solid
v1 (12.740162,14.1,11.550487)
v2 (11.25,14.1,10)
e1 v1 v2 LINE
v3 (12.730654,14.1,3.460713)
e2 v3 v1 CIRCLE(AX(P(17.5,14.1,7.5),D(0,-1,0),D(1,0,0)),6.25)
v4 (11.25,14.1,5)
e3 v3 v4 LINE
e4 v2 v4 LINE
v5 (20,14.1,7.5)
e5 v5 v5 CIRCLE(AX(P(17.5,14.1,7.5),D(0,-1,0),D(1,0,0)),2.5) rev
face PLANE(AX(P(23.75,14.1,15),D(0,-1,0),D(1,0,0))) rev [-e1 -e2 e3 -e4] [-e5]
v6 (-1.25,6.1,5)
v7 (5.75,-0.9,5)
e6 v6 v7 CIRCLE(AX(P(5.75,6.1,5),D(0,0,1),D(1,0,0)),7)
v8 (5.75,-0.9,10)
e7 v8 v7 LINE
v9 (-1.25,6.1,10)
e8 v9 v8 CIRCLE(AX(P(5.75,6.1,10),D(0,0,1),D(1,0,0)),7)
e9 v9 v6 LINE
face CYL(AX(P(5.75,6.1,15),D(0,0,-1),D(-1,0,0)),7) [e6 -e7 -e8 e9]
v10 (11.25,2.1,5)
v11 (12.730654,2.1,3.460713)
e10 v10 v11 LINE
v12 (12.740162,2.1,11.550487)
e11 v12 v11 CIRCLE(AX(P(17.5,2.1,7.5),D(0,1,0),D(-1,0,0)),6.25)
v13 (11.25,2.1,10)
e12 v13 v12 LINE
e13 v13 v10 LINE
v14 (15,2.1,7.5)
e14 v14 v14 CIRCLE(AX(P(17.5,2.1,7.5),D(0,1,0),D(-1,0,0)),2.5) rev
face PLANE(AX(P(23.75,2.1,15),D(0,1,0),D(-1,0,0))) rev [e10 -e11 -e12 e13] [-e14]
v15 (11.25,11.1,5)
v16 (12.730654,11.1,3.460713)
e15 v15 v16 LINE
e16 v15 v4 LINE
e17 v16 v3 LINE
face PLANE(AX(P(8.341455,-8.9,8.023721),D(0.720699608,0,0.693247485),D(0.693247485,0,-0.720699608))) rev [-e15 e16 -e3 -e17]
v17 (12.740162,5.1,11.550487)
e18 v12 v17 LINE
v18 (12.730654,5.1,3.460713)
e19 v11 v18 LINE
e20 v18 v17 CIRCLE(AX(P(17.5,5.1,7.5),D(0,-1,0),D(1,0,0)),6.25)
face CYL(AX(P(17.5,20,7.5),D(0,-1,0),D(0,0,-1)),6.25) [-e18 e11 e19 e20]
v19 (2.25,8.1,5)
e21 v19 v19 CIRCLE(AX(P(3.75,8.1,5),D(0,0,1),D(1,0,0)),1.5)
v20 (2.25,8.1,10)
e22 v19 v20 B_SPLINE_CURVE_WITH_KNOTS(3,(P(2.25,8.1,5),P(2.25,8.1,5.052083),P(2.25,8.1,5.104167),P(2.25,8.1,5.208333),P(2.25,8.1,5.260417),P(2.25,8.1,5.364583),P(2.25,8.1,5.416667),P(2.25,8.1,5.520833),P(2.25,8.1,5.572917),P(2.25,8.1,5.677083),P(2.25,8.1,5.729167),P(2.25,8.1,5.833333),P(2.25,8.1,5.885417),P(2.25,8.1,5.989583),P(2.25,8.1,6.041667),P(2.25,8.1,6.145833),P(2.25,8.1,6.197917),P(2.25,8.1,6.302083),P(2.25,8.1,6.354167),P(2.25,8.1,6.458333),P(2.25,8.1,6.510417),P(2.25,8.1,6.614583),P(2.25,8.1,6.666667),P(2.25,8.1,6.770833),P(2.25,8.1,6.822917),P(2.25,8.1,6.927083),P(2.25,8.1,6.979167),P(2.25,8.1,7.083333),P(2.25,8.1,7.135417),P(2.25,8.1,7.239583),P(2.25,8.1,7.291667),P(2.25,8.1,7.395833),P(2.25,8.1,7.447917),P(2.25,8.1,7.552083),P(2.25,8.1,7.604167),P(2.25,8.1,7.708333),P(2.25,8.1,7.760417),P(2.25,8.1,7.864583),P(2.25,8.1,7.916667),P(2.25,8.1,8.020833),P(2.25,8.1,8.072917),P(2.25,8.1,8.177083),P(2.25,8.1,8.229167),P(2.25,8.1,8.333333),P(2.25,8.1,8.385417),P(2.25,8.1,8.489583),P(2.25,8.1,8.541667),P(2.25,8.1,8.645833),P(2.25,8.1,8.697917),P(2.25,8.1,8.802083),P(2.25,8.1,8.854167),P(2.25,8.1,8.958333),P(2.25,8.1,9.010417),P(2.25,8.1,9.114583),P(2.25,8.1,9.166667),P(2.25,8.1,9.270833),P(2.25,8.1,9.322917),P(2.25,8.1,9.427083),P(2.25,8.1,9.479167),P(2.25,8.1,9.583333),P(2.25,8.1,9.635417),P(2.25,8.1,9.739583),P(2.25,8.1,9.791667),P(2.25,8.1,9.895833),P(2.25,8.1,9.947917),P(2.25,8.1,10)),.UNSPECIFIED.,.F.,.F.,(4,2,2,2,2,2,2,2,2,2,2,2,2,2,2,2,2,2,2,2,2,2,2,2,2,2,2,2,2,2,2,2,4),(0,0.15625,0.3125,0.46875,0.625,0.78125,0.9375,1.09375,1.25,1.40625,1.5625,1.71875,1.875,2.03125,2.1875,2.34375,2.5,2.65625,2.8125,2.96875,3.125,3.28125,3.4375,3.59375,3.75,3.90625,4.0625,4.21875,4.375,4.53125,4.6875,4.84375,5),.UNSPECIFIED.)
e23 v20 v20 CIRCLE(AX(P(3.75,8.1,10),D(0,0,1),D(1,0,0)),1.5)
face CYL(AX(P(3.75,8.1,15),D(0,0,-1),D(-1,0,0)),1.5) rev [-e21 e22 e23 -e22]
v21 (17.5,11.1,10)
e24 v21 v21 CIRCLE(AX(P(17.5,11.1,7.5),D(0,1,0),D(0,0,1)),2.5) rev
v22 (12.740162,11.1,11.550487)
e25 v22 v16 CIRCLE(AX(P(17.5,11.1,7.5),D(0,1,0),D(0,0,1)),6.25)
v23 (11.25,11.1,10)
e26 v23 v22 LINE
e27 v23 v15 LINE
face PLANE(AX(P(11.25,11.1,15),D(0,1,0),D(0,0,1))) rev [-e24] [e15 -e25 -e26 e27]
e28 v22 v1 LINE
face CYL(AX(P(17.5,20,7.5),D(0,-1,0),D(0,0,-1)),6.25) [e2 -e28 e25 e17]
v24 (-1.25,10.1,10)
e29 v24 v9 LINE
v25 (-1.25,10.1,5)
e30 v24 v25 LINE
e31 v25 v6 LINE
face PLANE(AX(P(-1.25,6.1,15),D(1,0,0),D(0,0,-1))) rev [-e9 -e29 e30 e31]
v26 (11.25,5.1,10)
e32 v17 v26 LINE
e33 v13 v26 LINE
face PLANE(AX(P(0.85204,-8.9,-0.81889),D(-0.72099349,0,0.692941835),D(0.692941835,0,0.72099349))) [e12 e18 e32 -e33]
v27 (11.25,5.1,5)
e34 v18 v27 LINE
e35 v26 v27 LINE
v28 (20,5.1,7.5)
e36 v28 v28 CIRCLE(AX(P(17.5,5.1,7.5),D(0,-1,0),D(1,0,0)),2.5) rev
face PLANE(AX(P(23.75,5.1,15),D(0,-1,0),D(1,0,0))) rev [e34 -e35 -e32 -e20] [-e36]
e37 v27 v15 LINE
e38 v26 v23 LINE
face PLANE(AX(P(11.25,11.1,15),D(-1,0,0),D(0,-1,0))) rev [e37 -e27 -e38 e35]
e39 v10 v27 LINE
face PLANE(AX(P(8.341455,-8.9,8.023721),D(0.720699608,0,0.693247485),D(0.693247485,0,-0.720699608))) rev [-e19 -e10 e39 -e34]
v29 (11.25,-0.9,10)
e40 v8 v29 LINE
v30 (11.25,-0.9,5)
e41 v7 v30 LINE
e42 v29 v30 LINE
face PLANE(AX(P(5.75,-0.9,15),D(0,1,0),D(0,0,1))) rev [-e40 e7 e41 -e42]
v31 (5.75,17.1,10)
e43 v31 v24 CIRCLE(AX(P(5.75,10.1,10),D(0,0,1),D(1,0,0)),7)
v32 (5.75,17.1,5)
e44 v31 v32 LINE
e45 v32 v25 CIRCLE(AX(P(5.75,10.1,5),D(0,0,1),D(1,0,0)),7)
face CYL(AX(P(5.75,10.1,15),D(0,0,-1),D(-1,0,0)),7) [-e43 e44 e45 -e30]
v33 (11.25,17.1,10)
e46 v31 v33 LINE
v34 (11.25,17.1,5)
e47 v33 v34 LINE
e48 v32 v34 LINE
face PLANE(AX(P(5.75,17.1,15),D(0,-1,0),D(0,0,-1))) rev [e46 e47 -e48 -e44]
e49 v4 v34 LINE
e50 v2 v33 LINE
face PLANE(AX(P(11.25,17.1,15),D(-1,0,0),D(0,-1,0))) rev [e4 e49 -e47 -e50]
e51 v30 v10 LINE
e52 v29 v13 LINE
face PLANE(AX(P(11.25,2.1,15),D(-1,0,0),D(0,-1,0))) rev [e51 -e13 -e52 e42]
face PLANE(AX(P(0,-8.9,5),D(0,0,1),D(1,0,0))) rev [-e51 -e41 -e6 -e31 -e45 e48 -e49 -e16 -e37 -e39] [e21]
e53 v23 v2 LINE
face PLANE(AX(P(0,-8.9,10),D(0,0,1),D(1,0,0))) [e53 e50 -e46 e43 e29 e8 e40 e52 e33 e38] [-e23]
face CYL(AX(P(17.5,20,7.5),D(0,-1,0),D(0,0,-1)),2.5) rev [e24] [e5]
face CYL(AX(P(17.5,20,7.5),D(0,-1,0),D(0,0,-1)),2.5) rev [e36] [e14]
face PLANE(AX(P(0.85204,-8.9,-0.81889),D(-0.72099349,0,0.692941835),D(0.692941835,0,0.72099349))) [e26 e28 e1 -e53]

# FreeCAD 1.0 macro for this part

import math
import FreeCAD as App
import Part
import Sketcher

V = App.Vector


def add_polygon(sketch, points):
    """Adds a closed chain of lines whose ends are joined by coincident constraints."""
    first, n = sketch.GeometryCount, len(points)
    for a, b in zip(points, points[1:] + points[:1]):
        sketch.addGeometry(Part.LineSegment(App.Vector(*a, 0), App.Vector(*b, 0)), False)
    for i in range(n):
        sketch.addConstraint(Sketcher.Constraint("Coincident", first + i, 2, first + (i + 1) % n, 1))

doc = App.newDocument("Part")
body = doc.addObject("PartDesign::Body", "Body")

# Sketch on XY plane
sketch1 = body.newObject("Sketcher::SketchObject", "Sketch")
sketch1.AttachmentSupport = (doc.getObject("XY_Plane"), [""])
sketch1.MapMode = "FlatFace"
sketch1.addGeometry([
    Part.LineSegment(V(11.25, 14.1, 0), V(11.25, 17.1, 0)),  # 0
    Part.LineSegment(V(11.25, 17.1, 0), V(5.75, 17.1, 0)),  # 1
    Part.ArcOfCircle(Part.Circle(V(5.75, 10.1, 0), V(0, 0, 1), 7), math.radians(90), math.radians(180)),  # 2
    Part.LineSegment(V(-1.25, 10.1, 0), V(-1.25, 6.1, 0)),  # 3
    Part.ArcOfCircle(Part.Circle(V(5.75, 6.1, 0), V(0, 0, 1), 7), math.radians(-180), math.radians(-90)),  # 4
    Part.LineSegment(V(5.75, -0.9, 0), V(11.25, -0.9, 0)),  # 5
    Part.LineSegment(V(11.25, -0.9, 0), V(11.25, 2.1, 0)),  # 6
    Part.LineSegment(V(11.25, 2.1, 0), V(23.75, 2.1, 0)),  # 7
    Part.LineSegment(V(23.75, 2.1, 0), V(23.75, 5.1, 0)),  # 8
    Part.LineSegment(V(23.75, 5.1, 0), V(11.25, 5.1, 0)),  # 9
    Part.LineSegment(V(11.25, 5.1, 0), V(11.25, 11.1, 0)),  # 10
    Part.LineSegment(V(11.25, 11.1, 0), V(23.75, 11.1, 0)),  # 11
    Part.LineSegment(V(23.75, 11.1, 0), V(23.75, 14.1, 0)),  # 12
    Part.LineSegment(V(23.75, 14.1, 0), V(11.25, 14.1, 0)),  # 13
    Part.Circle(V(3.75, 8.1, 0), V(0, 0, 1), 1.5),  # 14
], False)
sketch1.addConstraint([
    Sketcher.Constraint("Coincident", 0, 2, 1, 1),
    Sketcher.Constraint("Tangent", 1, 2, 2, 1),
    Sketcher.Constraint("Tangent", 2, 2, 3, 1),
    Sketcher.Constraint("Tangent", 3, 2, 4, 1),
    Sketcher.Constraint("Tangent", 4, 2, 5, 1),
    Sketcher.Constraint("Coincident", 5, 2, 6, 1),
    Sketcher.Constraint("Coincident", 6, 2, 7, 1),
    Sketcher.Constraint("Coincident", 7, 2, 8, 1),
    Sketcher.Constraint("Coincident", 8, 2, 9, 1),
    Sketcher.Constraint("Coincident", 9, 2, 10, 1),
    Sketcher.Constraint("Coincident", 10, 2, 11, 1),
    Sketcher.Constraint("Coincident", 11, 2, 12, 1),
    Sketcher.Constraint("Coincident", 12, 2, 13, 1),
    Sketcher.Constraint("Coincident", 13, 2, 0, 1),
    Sketcher.Constraint("Vertical", 0),
    Sketcher.Constraint("Horizontal", 1),
    Sketcher.Constraint("Vertical", 3),
    Sketcher.Constraint("Horizontal", 5),
    Sketcher.Constraint("Vertical", 6),
    Sketcher.Constraint("Horizontal", 7),
    Sketcher.Constraint("Vertical", 8),
    Sketcher.Constraint("Horizontal", 9),
    Sketcher.Constraint("Vertical", 10),
    Sketcher.Constraint("Horizontal", 11),
    Sketcher.Constraint("Vertical", 12),
    Sketcher.Constraint("Horizontal", 13),
    Sketcher.Constraint("Equal", 2, 4),
    Sketcher.Constraint("Vertical", 0, 2, 5, 2),
    Sketcher.Constraint("Vertical", 6, 2, 9, 2),
    Sketcher.Constraint("Vertical", 8, 2, 11, 2),
    Sketcher.Constraint("Equal", 0, 6),
    Sketcher.Constraint("Equal", 6, 8),
    Sketcher.Constraint("Equal", 8, 12),
    Sketcher.Constraint("Diameter", 14, 3.0),
    Sketcher.Constraint("Radius", 2, 7.0),
    Sketcher.Constraint("DistanceY", 0, 1, 0, 2, 3.0),
    Sketcher.Constraint("DistanceY", 3, 2, 3, 1, 4.0),
    Sketcher.Constraint("DistanceX", 1, 2, 1, 1, 5.5),
    Sketcher.Constraint("DistanceX", 7, 1, 7, 2, 12.5),
    Sketcher.Constraint("DistanceX", 14, 3, 2, 3, 2.0),
    Sketcher.Constraint("DistanceY", 14, 3, 2, 3, 2.0),
    Sketcher.Constraint("DistanceY", -1, 1, 2, 3, 10.1),
    Sketcher.Constraint("DistanceX", -1, 1, 2, 3, 5.75),
])
pad1 = body.newObject("PartDesign::Pad", "Pad")
pad1.Profile = sketch1
pad1.Length = 15

# Sketch on XZ plane
sketch2 = body.newObject("Sketcher::SketchObject", "Sketch001")
sketch2.AttachmentSupport = (doc.getObject("XZ_Plane"), [""])
sketch2.MapMode = "FlatFace"
sketch2.addGeometry([
    Part.Circle(V(17.5, 7.5, 0), V(0, 0, 1), 2.5),  # 0
    Part.LineSegment(V(11.25, 0, 0), V(17.5, 1.25, 0)),  # 1
    Part.ArcOfCircle(Part.Circle(V(17.5, 7.5, 0), V(0, 0, 1), 6.25), math.radians(-90), math.radians(90)),  # 2
    Part.LineSegment(V(17.5, 13.75, 0), V(11.25, 15, 0)),  # 3
    Part.LineSegment(V(11.25, 15, 0), V(11.25, 17.96127, 0)),  # 4
    Part.LineSegment(V(11.25, 17.96127, 0), V(29.663454, 17.96127, 0)),  # 5
    Part.LineSegment(V(29.663454, 17.96127, 0), V(29.663454, -1.868603, 0)),  # 6
    Part.LineSegment(V(29.663454, -1.868603, 0), V(11.126279, -1.868603, 0)),  # 7
    Part.LineSegment(V(11.126279, -1.868603, 0), V(11.25, 0, 0)),  # 8
], False)
sketch2.addConstraint([
    Sketcher.Constraint("Coincident", 1, 2, 2, 1),
    Sketcher.Constraint("Coincident", 2, 2, 3, 1),
    Sketcher.Constraint("Coincident", 3, 2, 4, 1),
    Sketcher.Constraint("Coincident", 4, 2, 5, 1),
    Sketcher.Constraint("Coincident", 5, 2, 6, 1),
    Sketcher.Constraint("Coincident", 6, 2, 7, 1),
    Sketcher.Constraint("Coincident", 7, 2, 8, 1),
    Sketcher.Constraint("Coincident", 8, 2, 1, 1),
    Sketcher.Constraint("Vertical", 4),
    Sketcher.Constraint("Horizontal", 5),
    Sketcher.Constraint("Vertical", 6),
    Sketcher.Constraint("Horizontal", 7),
    Sketcher.Constraint("Coincident", 2, 3, 0, 3),
    Sketcher.Constraint("PointOnObject", 8, 2, -1),
    Sketcher.Constraint("Vertical", 2, 3, 1, 2),
    Sketcher.Constraint("Vertical", 1, 2, 2, 2),
    Sketcher.Constraint("Vertical", 4, 2, 8, 2),
    Sketcher.Constraint("Equal", 1, 3),
    Sketcher.Constraint("Diameter", 0, 5.0),
    Sketcher.Constraint("Radius", 2, 6.25),
    Sketcher.Constraint("DistanceY", -1, 1, 3, 2, 15.0),
    Sketcher.Constraint("DistanceX", -1, 1, 0, 3, 17.5),
    Sketcher.Constraint("DistanceX", -1, 1, 3, 2, 11.25),
    Sketcher.Constraint("DistanceY", 4, 1, 4, 2, 2.96127),
    Sketcher.Constraint("DistanceX", 5, 1, 5, 2, 18.413454),
    Sketcher.Constraint("DistanceX", 7, 2, 7, 1, 18.537175),
    Sketcher.Constraint("DistanceY", 6, 2, 6, 1, 19.829873),
])
pocket1 = body.newObject("PartDesign::Pocket", "Pocket")
pocket1.Profile = sketch2
pocket1.Length = 20

# Sketch on XZ plane
sketch3 = body.newObject("Sketcher::SketchObject", "Sketch002")
sketch3.AttachmentSupport = (doc.getObject("XZ_Plane"), [""])
sketch3.MapMode = "FlatFace"
sketch3.AttachmentOffset = App.Placement(V(0, 0, 8.9), App.Rotation())
sketch3.addGeometry(Part.LineSegment(V(-4.389646, 5, 0), V(5.75, 5, 0)), False)  # 0
sketch3.addGeometry(Part.LineSegment(V(5.75, 5, 0), V(5.75, 0, 0)), False)  # 1
sketch3.addGeometry(Part.LineSegment(V(5.75, 0, 0), V(11.25, 0, 0)), False)  # 2
sketch3.addGeometry(Part.LineSegment(V(11.25, 0, 0), V(11.25, 5, 0)), False)  # 3
sketch3.addGeometry(Part.LineSegment(V(11.25, 5, 0), V(12.730654, 3.460713, 0)), False)  # 4
sketch3.addGeometry(Part.ArcOfCircle(Part.Circle(V(17.5, 7.5, 0), V(0, 0, 1), 6.25), math.radians(-139.737846), math.radians(-132.486697)), False)  # 5
sketch3.addGeometry(Part.ArcOfCircle(Part.Circle(V(17.5, 7.5, 0), V(0, 0, 1), 6.25), math.radians(-132.486697), math.radians(-90)), False)  # 6
sketch3.addGeometry(Part.LineSegment(V(17.5, 1.25, 0), V(17.5, -1.887707, 0)), False)  # 7
sketch3.addGeometry(Part.LineSegment(V(17.5, -1.887707, 0), V(-4.389646, -1.887707, 0)), False)  # 8
sketch3.addGeometry(Part.LineSegment(V(-4.389646, -1.887707, 0), V(-4.389646, 5, 0)), False)  # 9
add_polygon(sketch3, [(5.75, 0), (5.75, 5), (11.25, 5), (11.25, 0)])  # lines 10-13
sketch3.addGeometry(Part.LineSegment(V(5.75, 10, 0), V(-4.389646, 10, 0)), False)  # 14
sketch3.addGeometry(Part.LineSegment(V(-4.389646, 10, 0), V(-4.389646, 16.456539, 0)), False)  # 15
sketch3.addGeometry(Part.LineSegment(V(-4.389646, 16.456539, 0), V(17.5, 16.456539, 0)), False)  # 16
sketch3.addGeometry(Part.LineSegment(V(17.5, 16.456539, 0), V(17.5, 13.75, 0)), False)  # 17
sketch3.addGeometry(Part.ArcOfCircle(Part.Circle(V(17.5, 7.5, 0), V(0, 0, 1), 6.25), math.radians(90), math.radians(139.603158)), False)  # 18
sketch3.addGeometry(Part.LineSegment(V(12.740162, 11.550487, 0), V(11.25, 10, 0)), False)  # 19
sketch3.addGeometry(Part.LineSegment(V(11.25, 10, 0), V(11.25, 15, 0)), False)  # 20
sketch3.addGeometry(Part.LineSegment(V(11.25, 15, 0), V(5.75, 15, 0)), False)  # 21
sketch3.addGeometry(Part.LineSegment(V(5.75, 15, 0), V(5.75, 10, 0)), False)  # 22
add_polygon(sketch3, [(5.75, 10), (5.75, 15), (11.25, 15), (11.25, 10)])  # lines 23-26
sketch3.addConstraint([
    Sketcher.Constraint("Coincident", 0, 2, 1, 1),
    Sketcher.Constraint("Coincident", 1, 2, 2, 1),
    Sketcher.Constraint("Coincident", 2, 2, 3, 1),
    Sketcher.Constraint("Coincident", 3, 2, 4, 1),
    Sketcher.Constraint("Coincident", 4, 2, 5, 1),
    Sketcher.Constraint("Tangent", 5, 2, 6, 1),
    Sketcher.Constraint("Coincident", 6, 2, 7, 1),
    Sketcher.Constraint("Coincident", 7, 2, 8, 1),
    Sketcher.Constraint("Coincident", 8, 2, 9, 1),
    Sketcher.Constraint("Coincident", 9, 2, 0, 1),
    Sketcher.Constraint("Coincident", 14, 2, 15, 1),
    Sketcher.Constraint("Coincident", 15, 2, 16, 1),
    Sketcher.Constraint("Coincident", 16, 2, 17, 1),
    Sketcher.Constraint("Coincident", 17, 2, 18, 1),
    Sketcher.Constraint("Coincident", 18, 2, 19, 1),
    Sketcher.Constraint("Coincident", 19, 2, 20, 1),
    Sketcher.Constraint("Coincident", 20, 2, 21, 1),
    Sketcher.Constraint("Coincident", 21, 2, 22, 1),
    Sketcher.Constraint("Coincident", 22, 2, 14, 1),
    Sketcher.Constraint("Horizontal", 0),
    Sketcher.Constraint("Vertical", 1),
    Sketcher.Constraint("Horizontal", 2),
    Sketcher.Constraint("Vertical", 3),
    Sketcher.Constraint("Vertical", 7),
    Sketcher.Constraint("Horizontal", 8),
    Sketcher.Constraint("Vertical", 9),
    Sketcher.Constraint("Vertical", 10),
    Sketcher.Constraint("Horizontal", 11),
    Sketcher.Constraint("Vertical", 12),
    Sketcher.Constraint("Horizontal", 13),
    Sketcher.Constraint("Horizontal", 14),
    Sketcher.Constraint("Vertical", 15),
    Sketcher.Constraint("Horizontal", 16),
    Sketcher.Constraint("Vertical", 17),
    Sketcher.Constraint("Vertical", 20),
    Sketcher.Constraint("Horizontal", 21),
    Sketcher.Constraint("Vertical", 22),
    Sketcher.Constraint("Vertical", 23),
    Sketcher.Constraint("Horizontal", 24),
    Sketcher.Constraint("Vertical", 25),
    Sketcher.Constraint("Horizontal", 26),
    Sketcher.Constraint("Coincident", 18, 3, 5, 3),
    Sketcher.Constraint("Coincident", 10, 2, 0, 2),
    Sketcher.Constraint("Coincident", 11, 2, 3, 2),
    Sketcher.Constraint("Coincident", 23, 2, 21, 2),
    Sketcher.Constraint("Coincident", 25, 2, 19, 2),
    Sketcher.Constraint("Equal", 5, 6),
    Sketcher.Constraint("Equal", 6, 18),
    Sketcher.Constraint("PointOnObject", 1, 2, -1),
    Sketcher.Constraint("PointOnObject", 12, 2, -1),
    Sketcher.Constraint("Horizontal", 14, 2, 19, 2),
    Sketcher.Constraint("Vertical", 18, 3, 6, 2),
    Sketcher.Constraint("Vertical", 9, 2, 14, 2),
    Sketcher.Constraint("Vertical", 7, 2, 16, 2),
    Sketcher.Constraint("Vertical", 12, 2, 19, 2),
    Sketcher.Constraint("Vertical", 13, 2, 21, 2),
    Sketcher.Constraint("Equal", 12, 20),
    Sketcher.Constraint("DistanceY", 1, 2, 1, 1, 5.0),
    Sketcher.Constraint("Radius", 5, 6.25),
    Sketcher.Constraint("DistanceX", 2, 1, 2, 2, 5.5),
    Sketcher.Constraint("DistanceY", -1, 1, 14, 2, 10.0),
    Sketcher.Constraint("DistanceX", -1, 1, 5, 3, 17.5),
    Sketcher.Constraint("DistanceY", -1, 1, 5, 3, 7.5),
    Sketcher.Constraint("DistanceX", -1, 1, 0, 2, 5.75),
    Sketcher.Constraint("DistanceY", 15, 1, 15, 2, 6.456539),
    Sketcher.Constraint("DistanceX", 8, 2, 4, 2, 17.120299),
    Sketcher.Constraint("DistanceX", 0, 1, 0, 2, 10.139646),
    Sketcher.Constraint("DistanceY", 7, 2, 7, 1, 3.137707),
    Sketcher.Constraint("DistanceX", -1, 1, 5, 2, 13.278631),
    Sketcher.Constraint("Distance", 19, 2.150487),
])
pocket2 = body.newObject("PartDesign::Pocket", "Pocket001")
pocket2.Profile = sketch3
pocket2.Length = 26

doc.recompute()
